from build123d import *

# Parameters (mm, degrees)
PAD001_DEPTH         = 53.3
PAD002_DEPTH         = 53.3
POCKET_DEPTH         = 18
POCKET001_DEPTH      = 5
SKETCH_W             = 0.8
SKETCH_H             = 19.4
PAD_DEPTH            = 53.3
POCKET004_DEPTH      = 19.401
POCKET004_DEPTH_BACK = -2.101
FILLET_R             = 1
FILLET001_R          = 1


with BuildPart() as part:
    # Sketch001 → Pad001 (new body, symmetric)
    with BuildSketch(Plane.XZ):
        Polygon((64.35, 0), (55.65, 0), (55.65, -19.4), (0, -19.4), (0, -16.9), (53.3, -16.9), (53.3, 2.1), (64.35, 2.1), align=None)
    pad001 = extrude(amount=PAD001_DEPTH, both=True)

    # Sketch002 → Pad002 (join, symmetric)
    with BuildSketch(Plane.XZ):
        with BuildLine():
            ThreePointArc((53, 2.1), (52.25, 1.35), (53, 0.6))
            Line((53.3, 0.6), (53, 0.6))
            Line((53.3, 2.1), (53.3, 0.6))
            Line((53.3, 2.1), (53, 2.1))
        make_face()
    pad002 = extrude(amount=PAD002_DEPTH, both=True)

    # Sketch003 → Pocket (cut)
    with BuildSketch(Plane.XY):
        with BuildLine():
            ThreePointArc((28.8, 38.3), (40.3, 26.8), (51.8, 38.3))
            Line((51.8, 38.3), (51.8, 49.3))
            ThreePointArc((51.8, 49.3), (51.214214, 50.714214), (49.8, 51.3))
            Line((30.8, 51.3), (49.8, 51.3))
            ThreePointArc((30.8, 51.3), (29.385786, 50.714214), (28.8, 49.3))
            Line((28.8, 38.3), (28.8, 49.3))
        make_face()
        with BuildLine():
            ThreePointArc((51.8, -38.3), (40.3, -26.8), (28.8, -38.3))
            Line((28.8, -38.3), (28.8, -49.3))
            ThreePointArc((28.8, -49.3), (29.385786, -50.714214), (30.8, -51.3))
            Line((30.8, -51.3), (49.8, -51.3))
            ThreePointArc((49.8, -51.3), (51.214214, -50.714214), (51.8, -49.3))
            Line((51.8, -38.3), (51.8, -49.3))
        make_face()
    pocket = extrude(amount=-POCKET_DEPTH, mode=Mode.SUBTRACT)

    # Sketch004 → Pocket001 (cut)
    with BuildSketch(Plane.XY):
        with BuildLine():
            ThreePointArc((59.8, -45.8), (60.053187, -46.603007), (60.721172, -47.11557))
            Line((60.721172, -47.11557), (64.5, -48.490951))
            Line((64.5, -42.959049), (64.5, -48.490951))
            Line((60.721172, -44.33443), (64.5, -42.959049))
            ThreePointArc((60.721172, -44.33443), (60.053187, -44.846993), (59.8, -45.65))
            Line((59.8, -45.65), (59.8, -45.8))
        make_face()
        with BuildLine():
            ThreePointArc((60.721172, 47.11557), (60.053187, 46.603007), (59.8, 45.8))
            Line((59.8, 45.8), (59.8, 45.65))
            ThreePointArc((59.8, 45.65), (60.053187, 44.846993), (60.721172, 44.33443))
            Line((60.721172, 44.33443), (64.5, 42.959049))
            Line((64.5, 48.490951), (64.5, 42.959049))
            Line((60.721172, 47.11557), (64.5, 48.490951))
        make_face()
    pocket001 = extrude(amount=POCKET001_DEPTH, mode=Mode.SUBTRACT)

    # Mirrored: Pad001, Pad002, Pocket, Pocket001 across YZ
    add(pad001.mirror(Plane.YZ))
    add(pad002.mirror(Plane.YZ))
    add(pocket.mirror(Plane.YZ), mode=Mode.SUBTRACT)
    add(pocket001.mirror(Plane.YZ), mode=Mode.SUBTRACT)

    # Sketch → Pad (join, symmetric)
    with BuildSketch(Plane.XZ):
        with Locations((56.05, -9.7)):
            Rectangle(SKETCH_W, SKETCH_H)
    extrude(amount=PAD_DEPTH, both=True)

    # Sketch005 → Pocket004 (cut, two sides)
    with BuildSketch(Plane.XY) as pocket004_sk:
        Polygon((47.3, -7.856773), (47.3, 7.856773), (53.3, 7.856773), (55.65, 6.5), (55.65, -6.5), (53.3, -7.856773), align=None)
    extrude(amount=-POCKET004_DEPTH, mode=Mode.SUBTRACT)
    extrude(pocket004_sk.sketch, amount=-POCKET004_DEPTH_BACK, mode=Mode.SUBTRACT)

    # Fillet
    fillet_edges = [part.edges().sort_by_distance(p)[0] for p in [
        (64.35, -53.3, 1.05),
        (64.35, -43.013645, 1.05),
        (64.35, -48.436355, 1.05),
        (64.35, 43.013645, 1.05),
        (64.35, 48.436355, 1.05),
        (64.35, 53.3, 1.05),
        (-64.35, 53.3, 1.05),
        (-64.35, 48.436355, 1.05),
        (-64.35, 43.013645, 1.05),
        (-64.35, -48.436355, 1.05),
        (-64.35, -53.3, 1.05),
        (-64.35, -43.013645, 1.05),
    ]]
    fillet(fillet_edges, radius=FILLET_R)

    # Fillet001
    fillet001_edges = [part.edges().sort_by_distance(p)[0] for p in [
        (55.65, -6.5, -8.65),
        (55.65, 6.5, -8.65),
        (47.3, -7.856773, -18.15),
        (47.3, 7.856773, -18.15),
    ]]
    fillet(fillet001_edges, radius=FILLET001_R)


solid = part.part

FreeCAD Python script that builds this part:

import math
import FreeCAD as App
import Part
import Sketcher

V = App.Vector
Q = App.Units.Quantity


def edges_at(feature, points):
    """Names of the edges that pass closest to the given points."""
    edges = feature.Shape.Edges
    near = lambda p: min(range(len(edges)), key=lambda i: edges[i].distToShape(Part.Vertex(*p))[0])
    return sorted({f"Edge{near(p) + 1}" for p in points})


def add_polygon(sketch, points):
    """Adds a closed chain of lines whose ends are joined by coincident constraints."""
    first, n = sketch.GeometryCount, len(points)
    for a, b in zip(points, points[1:] + points[:1]):
        sketch.addGeometry(Part.LineSegment(App.Vector(*a, 0), App.Vector(*b, 0)), False)
    for i in range(n):
        sketch.addConstraint(Sketcher.Constraint("Coincident", first + i, 2, first + (i + 1) % n, 1))

doc = App.newDocument("Part")
body = doc.addObject("PartDesign::Body", "Body")

# Sketch on XZ plane
sketch1 = doc.addObject("Sketcher::SketchObject", "Sketch")
body.addObject(sketch1)
sketch1.AttachmentSupport = (doc.XZ_Plane, [""])
sketch1.MapMode = "FlatFace"
add_polygon(sketch1, [(55.6, 0), (64.3, 0), (64.3, 2.1), (53.3, 2.1), (53.3, -16.9), (0, -16.9), (0, -19.4), (55.6, -19.4)])  # lines 0-7
sketch1.addConstraint([
    Sketcher.Constraint("Horizontal", 0),
    Sketcher.Constraint("Vertical", 1),
    Sketcher.Constraint("Horizontal", 2),
    Sketcher.Constraint("Vertical", 3),
    Sketcher.Constraint("Horizontal", 4),
    Sketcher.Constraint("Vertical", 5),
    Sketcher.Constraint("Horizontal", 6),
    Sketcher.Constraint("Vertical", 7),
    Sketcher.Constraint("PointOnObject", 0, 2, -1),
    Sketcher.Constraint("PointOnObject", 4, 2, -2),
    Sketcher.Constraint("DistanceY", 3, 2, 3, 1, Q("19 mm")),
    Sketcher.Constraint("DistanceX", 0, 1, 0, 2, Q("8.7 mm")),
    Sketcher.Constraint("DistanceX", 4, 2, 4, 1, Q("53.3 mm")),
    Sketcher.Constraint("DistanceY", 1, 1, 1, 2, Q("2.1 mm")),
    Sketcher.Constraint("DistanceY", 5, 2, 5, 1, Q("2.5 mm")),
    Sketcher.Constraint("DistanceX", 2, 2, 2, 1, Q("11.05 mm")),
])
pad1 = doc.addObject("PartDesign::Pad", "Pad")
body.addObject(pad1)
pad1.Profile = sketch1
pad1.Length = 106.6
pad1.Midplane = True

# Sketch on XZ plane
sketch2 = doc.addObject("Sketcher::SketchObject", "Sketch001")
body.addObject(sketch2)
sketch2.AttachmentSupport = (doc.XZ_Plane, [""])
sketch2.MapMode = "FlatFace"
sketch2.addGeometry([
    Part.ArcOfCircle(Part.Circle(V(53, 1.35, 0), V(0, 0, 1), 0.75), math.radians(90), math.radians(270)),
    Part.LineSegment(V(53, 0.6, 0), V(53.3, 0.6, 0)),
    Part.LineSegment(V(53.3, 0.6, 0), V(53.3, 2.1, 0)),
    Part.LineSegment(V(53.3, 2.1, 0), V(53, 2.1, 0)),
], False)
sketch2.addConstraint([
    Sketcher.Constraint("Tangent", 0, 2, 1, 1),
    Sketcher.Constraint("Coincident", 1, 2, 2, 1),
    Sketcher.Constraint("Coincident", 2, 2, 3, 1),
    Sketcher.Constraint("Tangent", 3, 2, 0, 1),
    Sketcher.Constraint("Horizontal", 1),
    Sketcher.Constraint("Vertical", 2),
    Sketcher.Constraint("Horizontal", 3),
    Sketcher.Constraint("Radius", 0, Q("0.75 mm")),
    Sketcher.Constraint("DistanceX", 1, 1, 1, 2, Q("0.3 mm")),
    Sketcher.Constraint("DistanceX", -1, 1, 0, 3, Q("53 mm")),
    Sketcher.Constraint("DistanceY", -1, 1, 0, 2, Q("0.6 mm")),
])
pad2 = doc.addObject("PartDesign::Pad", "Pad001")
body.addObject(pad2)
pad2.Profile = sketch2
pad2.Length = 106.6
pad2.Midplane = True

# Sketch on XY plane
sketch3 = doc.addObject("Sketcher::SketchObject", "Sketch002")
body.addObject(sketch3)
sketch3.AttachmentSupport = (doc.XY_Plane, [""])
sketch3.MapMode = "FlatFace"
sketch3.addGeometry([
    Part.ArcOfCircle(Part.Circle(V(40.3, 38.3, 0), V(0, 0, 1), 11.5), math.radians(180), math.radians(360)),  # 0
    Part.LineSegment(V(51.8, 38.3, 0), V(51.8, 49.3, 0)),  # 1
    Part.ArcOfCircle(Part.Circle(V(49.8, 49.3, 0), V(0, 0, 1), 2), math.radians(0), math.radians(90)),  # 2
    Part.LineSegment(V(49.8, 51.3, 0), V(30.8, 51.3, 0)),  # 3
    Part.ArcOfCircle(Part.Circle(V(30.8, 49.3, 0), V(0, 0, 1), 2), math.radians(90), math.radians(180)),  # 4
    Part.LineSegment(V(28.8, 49.3, 0), V(28.8, 38.3, 0)),  # 5
    Part.ArcOfCircle(Part.Circle(V(40.3, -38.3, 0), V(0, 0, 1), 11.5), math.radians(0), math.radians(180)),  # 6
    Part.LineSegment(V(28.8, -38.3, 0), V(28.8, -49.3, 0)),  # 7
    Part.ArcOfCircle(Part.Circle(V(30.8, -49.3, 0), V(0, 0, 1), 2), math.radians(180), math.radians(270)),  # 8
    Part.LineSegment(V(30.8, -51.3, 0), V(49.8, -51.3, 0)),  # 9
    Part.ArcOfCircle(Part.Circle(V(49.8, -49.3, 0), V(0, 0, 1), 2), math.radians(-90), math.radians(0)),  # 10
    Part.LineSegment(V(51.8, -49.3, 0), V(51.8, -38.3, 0)),  # 11
], False)
sketch3.addConstraint([
    Sketcher.Constraint("Tangent", 0, 2, 1, 1),
    Sketcher.Constraint("Tangent", 1, 2, 2, 1),
    Sketcher.Constraint("Tangent", 2, 2, 3, 1),
    Sketcher.Constraint("Tangent", 3, 2, 4, 1),
    Sketcher.Constraint("Tangent", 4, 2, 5, 1),
    Sketcher.Constraint("Tangent", 5, 2, 0, 1),
    Sketcher.Constraint("Tangent", 6, 2, 7, 1),
    Sketcher.Constraint("Tangent", 7, 2, 8, 1),
    Sketcher.Constraint("Tangent", 8, 2, 9, 1),
    Sketcher.Constraint("Tangent", 9, 2, 10, 1),
    Sketcher.Constraint("Tangent", 10, 2, 11, 1),
    Sketcher.Constraint("Tangent", 11, 2, 6, 1),
    Sketcher.Constraint("Vertical", 1),
    Sketcher.Constraint("Horizontal", 3),
    Sketcher.Constraint("Vertical", 5),
    Sketcher.Constraint("Vertical", 7),
    Sketcher.Constraint("Horizontal", 9),
    Sketcher.Constraint("Vertical", 11),
    Sketcher.Constraint("Equal", 2, 4),
    Sketcher.Constraint("Equal", 0, 6),
    Sketcher.Constraint("Equal", 4, 8),
    Sketcher.Constraint("Equal", 8, 10),
    Sketcher.Constraint("Symmetric", 0, 3, 6, 3, -1),
    Sketcher.Constraint("Equal", 5, 7),
    Sketcher.Constraint("Radius", 2, Q("1.999999 mm")),
    Sketcher.Constraint("Radius", 0, Q("11.5 mm")),
    Sketcher.Constraint("DistanceY", 1, 1, 1, 2, Q("11 mm")),
    Sketcher.Constraint("DistanceX", -1, 1, 0, 3, Q("40.3 mm")),
    Sketcher.Constraint("DistanceY", -1, 1, 0, 3, Q("38.3 mm")),
])
pocket1 = doc.addObject("PartDesign::Pocket", "Pocket")
body.addObject(pocket1)
pocket1.Profile = sketch3
pocket1.Length = 18

# Sketch on XY plane
sketch4 = doc.addObject("Sketcher::SketchObject", "Sketch003")
body.addObject(sketch4)
sketch4.AttachmentSupport = (doc.XY_Plane, [""])
sketch4.MapMode = "FlatFace"
sketch4.addGeometry([
    Part.ArcOfCircle(Part.Circle(V(61.2, -45.8, 0), V(0, 0, 1), 1.4), math.radians(180), math.radians(250)),  # 0
    Part.LineSegment(V(60.72, -47.12, 0), V(64.5, -48.49, 0)),  # 1
    Part.LineSegment(V(64.5, -48.49, 0), V(64.5, -42.96, 0)),  # 2
    Part.LineSegment(V(64.5, -42.96, 0), V(60.72, -44.33, 0)),  # 3
    Part.ArcOfCircle(Part.Circle(V(61.2, -45.65, 0), V(0, 0, 1), 1.4), math.radians(110), math.radians(180)),  # 4
    Part.LineSegment(V(59.8, -45.65, 0), V(59.8, -45.8, 0)),  # 5
    Part.ArcOfCircle(Part.Circle(V(61.2, 45.8, 0), V(0, 0, 1), 1.4), math.radians(110), math.radians(180)),  # 6
    Part.LineSegment(V(59.8, 45.8, 0), V(59.8, 45.65, 0)),  # 7
    Part.ArcOfCircle(Part.Circle(V(61.2, 45.65, 0), V(0, 0, 1), 1.4), math.radians(180), math.radians(250)),  # 8
    Part.LineSegment(V(60.72, 44.33, 0), V(64.5, 42.96, 0)),  # 9
    Part.LineSegment(V(64.5, 42.96, 0), V(64.5, 48.49, 0)),  # 10
    Part.LineSegment(V(64.5, 48.49, 0), V(60.72, 47.12, 0)),  # 11
], False)
sketch4.addConstraint([
    Sketcher.Constraint("Tangent", 0, 2, 1, 1),
    Sketcher.Constraint("Coincident", 1, 2, 2, 1),
    Sketcher.Constraint("Coincident", 2, 2, 3, 1),
    Sketcher.Constraint("Tangent", 3, 2, 4, 1),
    Sketcher.Constraint("Tangent", 4, 2, 5, 1),
    Sketcher.Constraint("Tangent", 5, 2, 0, 1),
    Sketcher.Constraint("Tangent", 6, 2, 7, 1),
    Sketcher.Constraint("Tangent", 7, 2, 8, 1),
    Sketcher.Constraint("Tangent", 8, 2, 9, 1),
    Sketcher.Constraint("Coincident", 9, 2, 10, 1),
    Sketcher.Constraint("Coincident", 10, 2, 11, 1),
    Sketcher.Constraint("Tangent", 11, 2, 6, 1),
    Sketcher.Constraint("Vertical", 2),
    Sketcher.Constraint("Vertical", 5),
    Sketcher.Constraint("Vertical", 7),
    Sketcher.Constraint("Vertical", 10),
    Sketcher.Constraint("Equal", 0, 4),
    Sketcher.Constraint("Equal", 4, 6),
    Sketcher.Constraint("Equal", 6, 8),
    Sketcher.Constraint("Symmetric", 0, 3, 6, 3, -1),
    Sketcher.Constraint("Symmetric", 3, 2, 8, 2, -1),
    Sketcher.Constraint("Symmetric", 1, 2, 10, 2, -1),
    Sketcher.Constraint("Parallel", 1, 9),
    Sketcher.Constraint("Radius", 0, Q("1.4 mm")),
    Sketcher.Constraint("Angle", 1, Q("-20.000001 deg")),
    Sketcher.Constraint("DistanceY", 5, 2, 5, 1, Q("0.15 mm")),
    Sketcher.Constraint("DistanceX", -1, 1, 0, 3, Q("61.2 mm")),
    Sketcher.Constraint("DistanceY", 0, 3, -1, 1, Q("45.8 mm")),
    Sketcher.Constraint("DistanceX", -1, 1, 1, 2, Q("64.5 mm")),
])
pocket2 = doc.addObject("PartDesign::Pocket", "Pocket001")
body.addObject(pocket2)
pocket2.Profile = sketch4
pocket2.Length = 5
pocket2.Reversed = True
doc.recompute()

mirrored = doc.addObject("PartDesign::Mirrored", "Mirrored")
body.addObject(mirrored)
mirrored.Originals = [pad1, pad2, pocket1, pocket2]
mirrored.MirrorPlane = (doc.YZ_Plane, [""])
body.Tip = mirrored

# Sketch on XZ plane
sketch5 = doc.addObject("Sketcher::SketchObject", "Sketch004")
body.addObject(sketch5)
sketch5.AttachmentSupport = (doc.XZ_Plane, [""])
sketch5.MapMode = "FlatFace"
add_polygon(sketch5, [(55.6, 0), (55.6, -19.4), (56.5, -19.4), (56.5, 0)])  # lines 0-3
sketch5.addConstraint([
    Sketcher.Constraint("Vertical", 0),
    Sketcher.Constraint("Horizontal", 1),
    Sketcher.Constraint("Vertical", 2),
    Sketcher.Constraint("Horizontal", 3),
    Sketcher.Constraint("PointOnObject", 2, 2, -1),
    Sketcher.Constraint("DistanceX", 1, 1, 1, 2, Q("0.8 mm")),
    Sketcher.Constraint("DistanceY", 0, 2, 0, 1, Q("19.4 mm")),
    Sketcher.Constraint("DistanceX", -1, 1, 0, 2, Q("55.65 mm")),
])
pad3 = doc.addObject("PartDesign::Pad", "Pad002")
body.addObject(pad3)
pad3.Profile = sketch5
pad3.Length = 106.6
pad3.Midplane = True

# Sketch on XY plane
sketch6 = doc.addObject("Sketcher::SketchObject", "Sketch005")
body.addObject(sketch6)
sketch6.AttachmentSupport = (doc.XY_Plane, [""])
sketch6.MapMode = "FlatFace"
add_polygon(sketch6, [(47.3, 7.9), (47.3, -7.9), (53.3, -7.9), (55.6, -6.5), (55.6, 6.5), (53.3, 7.9)])  # lines 0-5
sketch6.addConstraint([
    Sketcher.Constraint("Vertical", 0),
    Sketcher.Constraint("Horizontal", 1),
    Sketcher.Constraint("Vertical", 3),
    Sketcher.Constraint("Horizontal", 5),
    Sketcher.Constraint("Symmetric", 1, 2, 4, 2, -1),
    Sketcher.Constraint("Equal", 2, 4),
    Sketcher.Constraint("DistanceX", 1, 1, 1, 2, Q("6 mm")),
    Sketcher.Constraint("DistanceY", 3, 1, 3, 2, Q("13 mm")),
    Sketcher.Constraint("Angle", 2, Q("29.999998 deg")),
    Sketcher.Constraint("DistanceX", -1, 1, 0, 2, Q("47.3 mm")),
    Sketcher.Constraint("DistanceX", -1, 1, 2, 2, Q("55.65 mm")),
])
pocket3 = doc.addObject("PartDesign::Pocket", "Pocket002")
body.addObject(pocket3)
pocket3.Profile = sketch6
pocket3.Type = "ThroughAll"
pocket3.Midplane = True
doc.recompute()

fillet = doc.addObject("PartDesign::Fillet", "Fillet")
body.addObject(fillet)
fillet.Base = (pocket3, edges_at(pocket3, [
    (64.35, -53.3, 1.05),
    (64.35, -43.014, 1.05),
    (64.35, -48.436, 1.05),
    (64.35, 43.014, 1.05),
    (64.35, 48.436, 1.05),
    (64.35, 53.3, 1.05),
    (-64.35, 53.3, 1.05),
    (-64.35, 48.436, 1.05),
    (-64.35, 43.014, 1.05),
    (-64.35, -48.436, 1.05),
    (-64.35, -53.3, 1.05),
    (-64.35, -43.014, 1.05),
]))
fillet.Radius = 1
doc.recompute()

fillet2 = doc.addObject("PartDesign::Fillet", "Fillet001")
body.addObject(fillet2)
fillet2.Base = (fillet, edges_at(fillet, [
    (55.65, -6.5, -8.65),
    (55.65, 6.5, -8.65),
    (47.3, -7.857, -18.15),
    (47.3, 7.857, -18.15),
]))
fillet2.Radius = 1

doc.recompute()
